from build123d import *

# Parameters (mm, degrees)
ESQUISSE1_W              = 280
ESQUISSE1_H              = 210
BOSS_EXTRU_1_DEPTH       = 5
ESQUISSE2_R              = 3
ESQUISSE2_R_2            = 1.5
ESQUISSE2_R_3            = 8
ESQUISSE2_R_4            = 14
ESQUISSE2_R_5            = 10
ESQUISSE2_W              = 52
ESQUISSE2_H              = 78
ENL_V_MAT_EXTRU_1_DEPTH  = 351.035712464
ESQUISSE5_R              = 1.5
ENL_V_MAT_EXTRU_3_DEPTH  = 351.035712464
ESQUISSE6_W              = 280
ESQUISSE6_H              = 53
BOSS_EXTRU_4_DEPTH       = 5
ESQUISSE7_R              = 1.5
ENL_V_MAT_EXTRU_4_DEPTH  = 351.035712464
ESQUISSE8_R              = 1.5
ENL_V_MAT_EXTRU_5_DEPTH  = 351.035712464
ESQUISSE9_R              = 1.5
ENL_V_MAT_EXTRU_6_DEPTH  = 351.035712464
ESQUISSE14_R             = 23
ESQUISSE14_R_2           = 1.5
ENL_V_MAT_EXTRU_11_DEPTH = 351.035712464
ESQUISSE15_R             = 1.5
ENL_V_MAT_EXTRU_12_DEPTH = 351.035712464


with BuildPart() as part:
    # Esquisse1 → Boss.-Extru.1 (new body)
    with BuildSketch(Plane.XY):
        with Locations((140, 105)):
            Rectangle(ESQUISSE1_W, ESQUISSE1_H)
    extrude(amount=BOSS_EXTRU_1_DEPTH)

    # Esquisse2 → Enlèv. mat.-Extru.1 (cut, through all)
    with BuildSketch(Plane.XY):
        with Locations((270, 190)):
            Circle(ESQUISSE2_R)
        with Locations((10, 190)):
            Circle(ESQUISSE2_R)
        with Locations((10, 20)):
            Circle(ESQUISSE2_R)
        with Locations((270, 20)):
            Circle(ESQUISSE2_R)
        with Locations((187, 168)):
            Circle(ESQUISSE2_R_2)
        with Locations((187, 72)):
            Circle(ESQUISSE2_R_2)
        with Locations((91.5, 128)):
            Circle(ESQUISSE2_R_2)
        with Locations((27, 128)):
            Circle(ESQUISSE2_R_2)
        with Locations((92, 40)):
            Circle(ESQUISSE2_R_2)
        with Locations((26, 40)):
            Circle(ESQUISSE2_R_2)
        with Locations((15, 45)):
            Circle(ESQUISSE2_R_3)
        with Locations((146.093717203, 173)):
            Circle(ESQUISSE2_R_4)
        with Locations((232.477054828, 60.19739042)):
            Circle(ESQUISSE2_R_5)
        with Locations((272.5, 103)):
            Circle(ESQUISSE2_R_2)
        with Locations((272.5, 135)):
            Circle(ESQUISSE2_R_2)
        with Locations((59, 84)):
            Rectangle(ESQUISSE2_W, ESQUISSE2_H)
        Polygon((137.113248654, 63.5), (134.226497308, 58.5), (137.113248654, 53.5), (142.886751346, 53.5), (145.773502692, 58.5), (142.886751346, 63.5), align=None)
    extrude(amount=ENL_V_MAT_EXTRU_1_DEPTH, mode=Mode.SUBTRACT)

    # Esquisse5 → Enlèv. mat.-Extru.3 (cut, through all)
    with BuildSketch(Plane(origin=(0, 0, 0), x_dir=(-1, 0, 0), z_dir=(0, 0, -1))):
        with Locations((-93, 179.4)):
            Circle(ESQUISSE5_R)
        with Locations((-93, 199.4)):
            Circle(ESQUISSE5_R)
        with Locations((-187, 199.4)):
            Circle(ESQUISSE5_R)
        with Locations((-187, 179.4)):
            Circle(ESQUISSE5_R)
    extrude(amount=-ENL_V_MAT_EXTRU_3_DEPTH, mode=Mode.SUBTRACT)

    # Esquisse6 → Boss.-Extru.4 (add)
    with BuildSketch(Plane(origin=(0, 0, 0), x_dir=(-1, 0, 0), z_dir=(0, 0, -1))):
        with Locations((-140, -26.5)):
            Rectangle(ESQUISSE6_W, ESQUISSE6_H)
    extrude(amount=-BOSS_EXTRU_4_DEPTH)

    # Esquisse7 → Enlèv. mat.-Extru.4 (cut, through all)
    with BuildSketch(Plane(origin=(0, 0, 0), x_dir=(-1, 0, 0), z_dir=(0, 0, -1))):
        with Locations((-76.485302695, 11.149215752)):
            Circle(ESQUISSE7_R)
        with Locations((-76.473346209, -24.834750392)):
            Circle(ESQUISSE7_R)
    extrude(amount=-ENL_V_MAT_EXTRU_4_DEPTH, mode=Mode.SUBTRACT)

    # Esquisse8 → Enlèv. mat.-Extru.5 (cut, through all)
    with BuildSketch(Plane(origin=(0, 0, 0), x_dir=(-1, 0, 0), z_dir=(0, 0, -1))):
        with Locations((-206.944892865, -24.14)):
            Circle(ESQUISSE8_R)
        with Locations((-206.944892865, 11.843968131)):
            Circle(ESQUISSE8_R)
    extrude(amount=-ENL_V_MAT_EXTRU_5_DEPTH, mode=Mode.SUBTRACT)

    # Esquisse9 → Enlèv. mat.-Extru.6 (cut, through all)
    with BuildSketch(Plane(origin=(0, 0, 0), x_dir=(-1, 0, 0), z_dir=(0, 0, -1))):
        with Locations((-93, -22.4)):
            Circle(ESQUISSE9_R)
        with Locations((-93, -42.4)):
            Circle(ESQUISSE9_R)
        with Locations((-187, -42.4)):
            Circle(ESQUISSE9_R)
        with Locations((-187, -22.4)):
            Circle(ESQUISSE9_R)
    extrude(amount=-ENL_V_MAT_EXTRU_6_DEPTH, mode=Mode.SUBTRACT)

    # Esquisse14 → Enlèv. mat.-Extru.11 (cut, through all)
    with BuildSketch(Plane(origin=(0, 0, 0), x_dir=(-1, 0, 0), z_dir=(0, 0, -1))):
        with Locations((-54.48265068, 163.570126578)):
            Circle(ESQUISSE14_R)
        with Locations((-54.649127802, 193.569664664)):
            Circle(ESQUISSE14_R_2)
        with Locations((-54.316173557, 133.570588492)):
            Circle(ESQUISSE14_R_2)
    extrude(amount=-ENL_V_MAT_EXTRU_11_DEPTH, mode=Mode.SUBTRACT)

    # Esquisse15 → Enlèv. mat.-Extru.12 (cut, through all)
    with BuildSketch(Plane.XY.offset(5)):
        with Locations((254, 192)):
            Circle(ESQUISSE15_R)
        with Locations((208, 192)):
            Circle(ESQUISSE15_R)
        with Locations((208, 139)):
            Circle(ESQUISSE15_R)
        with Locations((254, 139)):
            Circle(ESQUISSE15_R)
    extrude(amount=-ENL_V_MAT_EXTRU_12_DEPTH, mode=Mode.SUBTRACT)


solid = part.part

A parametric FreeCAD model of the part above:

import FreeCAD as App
import Part
import Sketcher

V = App.Vector
Q = App.Units.Quantity

doc = App.newDocument("Part")
body = doc.addObject("PartDesign::Body", "Body")

# Sketch on XY plane
sketch1 = doc.addObject("Sketcher::SketchObject", "Sketch")
body.addObject(sketch1)
sketch1.AttachmentSupport = (doc.XY_Plane, [""])
sketch1.MapMode = "FlatFace"
sketch1.addGeometry([
    Part.LineSegment(V(0, 210, 0), V(0, 0, 0)),
    Part.LineSegment(V(0, 0, 0), V(280, 0, 0)),
    Part.LineSegment(V(280, 0, 0), V(280, 210, 0)),
    Part.LineSegment(V(280, 210, 0), V(0, 210, 0)),
], False)
sketch1.addConstraint([
    Sketcher.Constraint("Coincident", 0, 2, 1, 1),
    Sketcher.Constraint("Coincident", 1, 2, 2, 1),
    Sketcher.Constraint("Coincident", 2, 2, 3, 1),
    Sketcher.Constraint("Coincident", 3, 2, 0, 1),
    Sketcher.Constraint("Vertical", 0),
    Sketcher.Constraint("Horizontal", 1),
    Sketcher.Constraint("Vertical", 2),
    Sketcher.Constraint("Horizontal", 3),
    Sketcher.Constraint("Coincident", 0, 2, -1, 1),
    Sketcher.Constraint("DistanceX", 1, 1, 1, 2, Q("280 mm")),
    Sketcher.Constraint("DistanceY", 0, 2, 0, 1, Q("210 mm")),
])
pad1 = doc.addObject("PartDesign::Pad", "Pad")
body.addObject(pad1)
pad1.Profile = sketch1
pad1.Length = 5

# Sketch on XY plane
sketch2 = doc.addObject("Sketcher::SketchObject", "Sketch001")
body.addObject(sketch2)
sketch2.AttachmentSupport = (doc.XY_Plane, [""])
sketch2.MapMode = "FlatFace"
sketch2.addGeometry([
    Part.Circle(V(270, 190, 0), V(0, 0, 1), 3),  # 0
    Part.Circle(V(10, 190, 0), V(0, 0, 1), 3),  # 1
    Part.Circle(V(10, 20, 0), V(0, 0, 1), 3),  # 2
    Part.Circle(V(270, 20, 0), V(0, 0, 1), 3),  # 3
    Part.Circle(V(187, 168, 0), V(0, 0, 1), 1.5),  # 4
    Part.Circle(V(187, 72, 0), V(0, 0, 1), 1.5),  # 5
    Part.Circle(V(91.5, 128, 0), V(0, 0, 1), 1.5),  # 6
    Part.Circle(V(27, 128, 0), V(0, 0, 1), 1.5),  # 7
    Part.Circle(V(92, 40, 0), V(0, 0, 1), 1.5),  # 8
    Part.Circle(V(26, 40, 0), V(0, 0, 1), 1.5),  # 9
    Part.Circle(V(15, 45, 0), V(0, 0, 1), 8),  # 10
    Part.Circle(V(146.093717, 173, 0), V(0, 0, 1), 14),  # 11
    Part.Circle(V(232.477055, 60.19739, 0), V(0, 0, 1), 10),  # 12
    Part.Circle(V(272.5, 103, 0), V(0, 0, 1), 1.5),  # 13
    Part.Circle(V(272.5, 135, 0), V(0, 0, 1), 1.5),  # 14
    Part.LineSegment(V(33, 123, 0), V(33, 45, 0)),  # 15
    Part.LineSegment(V(33, 45, 0), V(85, 45, 0)),  # 16
    Part.LineSegment(V(85, 45, 0), V(85, 123, 0)),  # 17
    Part.LineSegment(V(85, 123, 0), V(33, 123, 0)),  # 18
    Part.LineSegment(V(137.113249, 63.5, 0), V(134.226497, 58.5, 0)),  # 19
    Part.LineSegment(V(134.226497, 58.5, 0), V(137.113249, 53.5, 0)),  # 20
    Part.LineSegment(V(137.113249, 53.5, 0), V(142.886751, 53.5, 0)),  # 21
    Part.LineSegment(V(142.886751, 53.5, 0), V(145.773503, 58.5, 0)),  # 22
    Part.LineSegment(V(145.773503, 58.5, 0), V(142.886751, 63.5, 0)),  # 23
    Part.LineSegment(V(142.886751, 63.5, 0), V(137.113249, 63.5, 0)),  # 24
], False)
sketch2.addConstraint([
    Sketcher.Constraint("Coincident", 15, 2, 16, 1),
    Sketcher.Constraint("Coincident", 16, 2, 17, 1),
    Sketcher.Constraint("Coincident", 17, 2, 18, 1),
    Sketcher.Constraint("Coincident", 18, 2, 15, 1),
    Sketcher.Constraint("Coincident", 19, 2, 20, 1),
    Sketcher.Constraint("Coincident", 20, 2, 21, 1),
    Sketcher.Constraint("Coincident", 21, 2, 22, 1),
    Sketcher.Constraint("Coincident", 22, 2, 23, 1),
    Sketcher.Constraint("Coincident", 23, 2, 24, 1),
    Sketcher.Constraint("Coincident", 24, 2, 19, 1),
    Sketcher.Constraint("Vertical", 15),
    Sketcher.Constraint("Horizontal", 16),
    Sketcher.Constraint("Vertical", 17),
    Sketcher.Constraint("Horizontal", 18),
    Sketcher.Constraint("Horizontal", 21),
    Sketcher.Constraint("Horizontal", 24),
    Sketcher.Constraint("Equal", 0, 1),
    Sketcher.Constraint("Equal", 1, 2),
    Sketcher.Constraint("Equal", 2, 3),
    Sketcher.Constraint("Equal", 4, 5),
    Sketcher.Constraint("Equal", 5, 6),
    Sketcher.Constraint("Equal", 6, 7),
    Sketcher.Constraint("Equal", 7, 8),
    Sketcher.Constraint("Equal", 8, 9),
    Sketcher.Constraint("Equal", 9, 13),
    Sketcher.Constraint("Equal", 13, 14),
    Sketcher.Constraint("Parallel", 19, 22),
    Sketcher.Constraint("Parallel", 20, 23),
    Sketcher.Constraint("Horizontal", 0, 3, 1, 3),
    Sketcher.Constraint("Horizontal", 2, 3, 3, 3),
    Sketcher.Constraint("Horizontal", 6, 3, 7, 3),
    Sketcher.Constraint("Horizontal", 8, 3, 9, 3),
    Sketcher.Constraint("Horizontal", 10, 3, 15, 2),
    Sketcher.Constraint("Horizontal", 19, 2, 22, 2),
    Sketcher.Constraint("Vertical", 1, 3, 2, 3),
    Sketcher.Constraint("Vertical", 0, 3, 3, 3),
    Sketcher.Constraint("Vertical", 4, 3, 5, 3),
    Sketcher.Constraint("Vertical", 13, 3, 14, 3),
    Sketcher.Constraint("Vertical", 21, 2, 23, 2),
    Sketcher.Constraint("Vertical", 20, 2, 24, 2),
    Sketcher.Constraint("Diameter", 0, Q("6 mm")),
    Sketcher.Constraint("Diameter", 4, Q("3 mm")),
    Sketcher.Constraint("Diameter", 10, Q("16 mm")),
    Sketcher.Constraint("Diameter", 11, Q("28 mm")),
    Sketcher.Constraint("Diameter", 12, Q("20 mm")),
    Sketcher.Constraint("DistanceX", 16, 1, 16, 2, Q("52 mm")),
    Sketcher.Constraint("DistanceY", 15, 2, 15, 1, Q("78 mm")),
    Sketcher.Constraint("Angle", 19, Q("-120 deg")),
    Sketcher.Constraint("DistanceX", -1, 1, 0, 3, Q("270 mm")),
    Sketcher.Constraint("DistanceY", -1, 1, 0, 3, Q("190 mm")),
    Sketcher.Constraint("DistanceX", -1, 1, 1, 3, Q("10 mm")),
    Sketcher.Constraint("DistanceY", -1, 1, 2, 3, Q("20 mm")),
    Sketcher.Constraint("DistanceX", -1, 1, 4, 3, Q("187 mm")),
    Sketcher.Constraint("DistanceY", -1, 1, 4, 3, Q("168 mm")),
    Sketcher.Constraint("DistanceY", -1, 1, 5, 3, Q("72 mm")),
    Sketcher.Constraint("DistanceY", -1, 1, 6, 3, Q("128 mm")),
    Sketcher.Constraint("DistanceX", -1, 1, 7, 3, Q("27 mm")),
    Sketcher.Constraint("DistanceX", -1, 1, 8, 3, Q("92 mm")),
    Sketcher.Constraint("DistanceY", -1, 1, 8, 3, Q("40 mm")),
    Sketcher.Constraint("DistanceX", -1, 1, 9, 3, Q("26 mm")),
    Sketcher.Constraint("DistanceX", -1, 1, 10, 3, Q("15 mm")),
    Sketcher.Constraint("DistanceY", -1, 1, 10, 3, Q("45 mm")),
    Sketcher.Constraint("DistanceY", -1, 1, 11, 3, Q("173 mm")),
    Sketcher.Constraint("DistanceY", -1, 1, 13, 3, Q("103 mm")),
    Sketcher.Constraint("DistanceY", -1, 1, 14, 3, Q("135 mm")),
    Sketcher.Constraint("DistanceX", -1, 1, 15, 2, Q("33 mm")),
    Sketcher.Constraint("DistanceY", 20, 2, 19, 2, Q("5 mm")),
    Sketcher.Constraint("DistanceX", -1, 1, 6, 3, Q("91.5 mm")),
    Sketcher.Constraint("DistanceX", -1, 1, 13, 3, Q("272.5 mm")),
    Sketcher.Constraint("DistanceY", -1, 1, 19, 2, Q("58.5 mm")),
    Sketcher.Constraint("DistanceX", 21, 1, 21, 2, Q("5.773503 mm")),
    Sketcher.Constraint("DistanceY", -1, 1, 12, 3, Q("60.19739 mm")),
    Sketcher.Constraint("DistanceX", -1, 1, 20, 2, Q("137.113249 mm")),
    Sketcher.Constraint("DistanceX", -1, 1, 11, 3, Q("146.093717 mm")),
    Sketcher.Constraint("DistanceX", -1, 1, 12, 3, Q("232.477055 mm")),
])
pocket1 = doc.addObject("PartDesign::Pocket", "Pocket")
body.addObject(pocket1)
pocket1.Profile = sketch2
pocket1.Type = "ThroughAll"
pocket1.Reversed = True

# Sketch on XY plane
sketch3 = doc.addObject("Sketcher::SketchObject", "Sketch002")
body.addObject(sketch3)
sketch3.AttachmentSupport = (doc.XY_Plane, [""])
sketch3.MapMode = "FlatFace"
sketch3.addGeometry([
    Part.Circle(V(93, 179.4, 0), V(0, 0, 1), 1.5),
    Part.Circle(V(93, 199.4, 0), V(0, 0, 1), 1.5),
    Part.Circle(V(187, 199.4, 0), V(0, 0, 1), 1.5),
    Part.Circle(V(187, 179.4, 0), V(0, 0, 1), 1.5),
], False)
sketch3.addConstraint([
    Sketcher.Constraint("Equal", 0, 1),
    Sketcher.Constraint("Equal", 1, 2),
    Sketcher.Constraint("Equal", 2, 3),
    Sketcher.Constraint("Horizontal", 1, 3, 2, 3),
    Sketcher.Constraint("Horizontal", 0, 3, 3, 3),
    Sketcher.Constraint("Vertical", 0, 3, 1, 3),
    Sketcher.Constraint("Vertical", 2, 3, 3, 3),
    Sketcher.Constraint("Diameter", 0, Q("3 mm")),
    Sketcher.Constraint("DistanceX", -1, 1, 0, 3, Q("93 mm")),
    Sketcher.Constraint("DistanceX", -1, 1, 2, 3, Q("187 mm")),
    Sketcher.Constraint("DistanceY", 0, 3, 1, 3, Q("20 mm")),
    Sketcher.Constraint("DistanceY", -1, 1, 0, 3, Q("179.4 mm")),
])
pocket2 = doc.addObject("PartDesign::Pocket", "Pocket001")
body.addObject(pocket2)
pocket2.Profile = sketch3
pocket2.Type = "ThroughAll"
pocket2.Reversed = True

# Sketch on XY plane
sketch4 = doc.addObject("Sketcher::SketchObject", "Sketch003")
body.addObject(sketch4)
sketch4.AttachmentSupport = (doc.XY_Plane, [""])
sketch4.MapMode = "FlatFace"
sketch4.addGeometry([
    Part.LineSegment(V(280, 0, 0), V(280, -53, 0)),
    Part.LineSegment(V(280, -53, 0), V(0, -53, 0)),
    Part.LineSegment(V(0, -53, 0), V(0, 0, 0)),
    Part.LineSegment(V(0, 0, 0), V(280, 0, 0)),
], False)
sketch4.addConstraint([
    Sketcher.Constraint("Coincident", 0, 2, 1, 1),
    Sketcher.Constraint("Coincident", 1, 2, 2, 1),
    Sketcher.Constraint("Coincident", 2, 2, 3, 1),
    Sketcher.Constraint("Coincident", 3, 2, 0, 1),
    Sketcher.Constraint("Vertical", 0),
    Sketcher.Constraint("Horizontal", 1),
    Sketcher.Constraint("Vertical", 2),
    Sketcher.Constraint("Horizontal", 3),
    Sketcher.Constraint("Coincident", 2, 2, -1, 1),
    Sketcher.Constraint("DistanceX", 1, 2, 1, 1, Q("280 mm")),
    Sketcher.Constraint("DistanceY", 0, 2, 0, 1, Q("53 mm")),
])
pad2 = doc.addObject("PartDesign::Pad", "Pad001")
body.addObject(pad2)
pad2.Profile = sketch4
pad2.Length = 5

# Sketch on XY plane
sketch5 = doc.addObject("Sketcher::SketchObject", "Sketch004")
body.addObject(sketch5)
sketch5.AttachmentSupport = (doc.XY_Plane, [""])
sketch5.MapMode = "FlatFace"
sketch5.addGeometry([
    Part.Circle(V(76.485303, 11.149216, 0), V(0, 0, 1), 1.5),
    Part.Circle(V(76.473346, -24.83475, 0), V(0, 0, 1), 1.5),
], False)
sketch5.addConstraint([
    Sketcher.Constraint("Equal", 0, 1),
    Sketcher.Constraint("Diameter", 0, Q("3 mm")),
    Sketcher.Constraint("DistanceY", 1, 3, -1, 1, Q("24.83475 mm")),
    Sketcher.Constraint("DistanceX", -1, 1, 0, 3, Q("76.485303 mm")),
    Sketcher.Constraint("DistanceY", -1, 1, 0, 3, Q("11.149216 mm")),
    Sketcher.Constraint("DistanceX", -1, 1, 1, 3, Q("76.473346 mm")),
])
pocket3 = doc.addObject("PartDesign::Pocket", "Pocket002")
body.addObject(pocket3)
pocket3.Profile = sketch5
pocket3.Type = "ThroughAll"
pocket3.Reversed = True

# Sketch on XY plane
sketch6 = doc.addObject("Sketcher::SketchObject", "Sketch005")
body.addObject(sketch6)
sketch6.AttachmentSupport = (doc.XY_Plane, [""])
sketch6.MapMode = "FlatFace"
sketch6.addGeometry([
    Part.Circle(V(206.944893, -24.14, 0), V(0, 0, 1), 1.5),
    Part.Circle(V(206.944893, 11.843968, 0), V(0, 0, 1), 1.5),
], False)
sketch6.addConstraint([
    Sketcher.Constraint("Equal", 0, 1),
    Sketcher.Constraint("Vertical", 0, 3, 1, 3),
    Sketcher.Constraint("Diameter", 0, Q("3 mm")),
    Sketcher.Constraint("DistanceY", 0, 3, -1, 1, Q("24.14 mm")),
    Sketcher.Constraint("DistanceY", -1, 1, 1, 3, Q("11.843968 mm")),
    Sketcher.Constraint("DistanceX", -1, 1, 0, 3, Q("206.944893 mm")),
])
pocket4 = doc.addObject("PartDesign::Pocket", "Pocket003")
body.addObject(pocket4)
pocket4.Profile = sketch6
pocket4.Type = "ThroughAll"
pocket4.Reversed = True

# Sketch on XY plane
sketch7 = doc.addObject("Sketcher::SketchObject", "Sketch006")
body.addObject(sketch7)
sketch7.AttachmentSupport = (doc.XY_Plane, [""])
sketch7.MapMode = "FlatFace"
sketch7.addGeometry([
    Part.Circle(V(93, -22.4, 0), V(0, 0, 1), 1.5),
    Part.Circle(V(93, -42.4, 0), V(0, 0, 1), 1.5),
    Part.Circle(V(187, -42.4, 0), V(0, 0, 1), 1.5),
    Part.Circle(V(187, -22.4, 0), V(0, 0, 1), 1.5),
], False)
sketch7.addConstraint([
    Sketcher.Constraint("Equal", 0, 1),
    Sketcher.Constraint("Equal", 1, 2),
    Sketcher.Constraint("Equal", 2, 3),
    Sketcher.Constraint("Horizontal", 1, 3, 2, 3),
    Sketcher.Constraint("Horizontal", 0, 3, 3, 3),
    Sketcher.Constraint("Vertical", 0, 3, 1, 3),
    Sketcher.Constraint("Vertical", 2, 3, 3, 3),
    Sketcher.Constraint("Diameter", 0, Q("3 mm")),
    Sketcher.Constraint("DistanceX", -1, 1, 0, 3, Q("93 mm")),
    Sketcher.Constraint("DistanceX", -1, 1, 2, 3, Q("187 mm")),
    Sketcher.Constraint("DistanceY", 1, 3, 0, 3, Q("20 mm")),
    Sketcher.Constraint("DistanceY", 0, 3, -1, 1, Q("22.4 mm")),
])
pocket5 = doc.addObject("PartDesign::Pocket", "Pocket004")
body.addObject(pocket5)
pocket5.Profile = sketch7
pocket5.Type = "ThroughAll"
pocket5.Reversed = True

# Sketch on XY plane
sketch8 = doc.addObject("Sketcher::SketchObject", "Sketch007")
body.addObject(sketch8)
sketch8.AttachmentSupport = (doc.XY_Plane, [""])
sketch8.MapMode = "FlatFace"
sketch8.addGeometry([
    Part.Circle(V(54.482651, 163.570127, 0), V(0, 0, 1), 23),
    Part.Circle(V(54.649128, 193.569665, 0), V(0, 0, 1), 1.5),
    Part.Circle(V(54.316174, 133.570588, 0), V(0, 0, 1), 1.5),
], False)
sketch8.addConstraint([
    Sketcher.Constraint("Equal", 1, 2),
    Sketcher.Constraint("Diameter", 0, Q("46 mm")),
    Sketcher.Constraint("Diameter", 1, Q("3 mm")),
    Sketcher.Constraint("DistanceX", -1, 1, 0, 3, Q("54.482651 mm")),
    Sketcher.Constraint("DistanceY", -1, 1, 2, 3, Q("133.570588 mm")),
    Sketcher.Constraint("DistanceY", 0, 3, 1, 3, Q("29.999538 mm")),
    Sketcher.Constraint("DistanceY", 2, 3, 0, 3, Q("29.999538 mm")),
    Sketcher.Constraint("DistanceX", -1, 1, 1, 3, Q("54.649128 mm")),
    Sketcher.Constraint("DistanceX", -1, 1, 2, 3, Q("54.316174 mm")),
])
pocket6 = doc.addObject("PartDesign::Pocket", "Pocket005")
body.addObject(pocket6)
pocket6.Profile = sketch8
pocket6.Type = "ThroughAll"
pocket6.Reversed = True

# Sketch on XY plane
sketch9 = doc.addObject("Sketcher::SketchObject", "Sketch008")
body.addObject(sketch9)
sketch9.AttachmentSupport = (doc.XY_Plane, [""])
sketch9.MapMode = "FlatFace"
sketch9.AttachmentOffset = App.Placement(V(0, 0, 5), App.Rotation())
sketch9.addGeometry([
    Part.Circle(V(254, 192, 0), V(0, 0, 1), 1.5),
    Part.Circle(V(208, 192, 0), V(0, 0, 1), 1.5),
    Part.Circle(V(208, 139, 0), V(0, 0, 1), 1.5),
    Part.Circle(V(254, 139, 0), V(0, 0, 1), 1.5),
], False)
sketch9.addConstraint([
    Sketcher.Constraint("Equal", 0, 1),
    Sketcher.Constraint("Equal", 1, 2),
    Sketcher.Constraint("Equal", 2, 3),
    Sketcher.Constraint("Horizontal", 0, 3, 1, 3),
    Sketcher.Constraint("Horizontal", 2, 3, 3, 3),
    Sketcher.Constraint("Vertical", 1, 3, 2, 3),
    Sketcher.Constraint("Vertical", 0, 3, 3, 3),
    Sketcher.Constraint("Diameter", 0, Q("3 mm")),
    Sketcher.Constraint("DistanceX", -1, 1, 0, 3, Q("254 mm")),
    Sketcher.Constraint("DistanceY", -1, 1, 0, 3, Q("192 mm")),
    Sketcher.Constraint("DistanceX", -1, 1, 1, 3, Q("208 mm")),
    Sketcher.Constraint("DistanceY", -1, 1, 2, 3, Q("139 mm")),
])
pocket7 = doc.addObject("PartDesign::Pocket", "Pocket006")
body.addObject(pocket7)
pocket7.Profile = sketch9
pocket7.Type = "ThroughAll"

doc.recompute()
